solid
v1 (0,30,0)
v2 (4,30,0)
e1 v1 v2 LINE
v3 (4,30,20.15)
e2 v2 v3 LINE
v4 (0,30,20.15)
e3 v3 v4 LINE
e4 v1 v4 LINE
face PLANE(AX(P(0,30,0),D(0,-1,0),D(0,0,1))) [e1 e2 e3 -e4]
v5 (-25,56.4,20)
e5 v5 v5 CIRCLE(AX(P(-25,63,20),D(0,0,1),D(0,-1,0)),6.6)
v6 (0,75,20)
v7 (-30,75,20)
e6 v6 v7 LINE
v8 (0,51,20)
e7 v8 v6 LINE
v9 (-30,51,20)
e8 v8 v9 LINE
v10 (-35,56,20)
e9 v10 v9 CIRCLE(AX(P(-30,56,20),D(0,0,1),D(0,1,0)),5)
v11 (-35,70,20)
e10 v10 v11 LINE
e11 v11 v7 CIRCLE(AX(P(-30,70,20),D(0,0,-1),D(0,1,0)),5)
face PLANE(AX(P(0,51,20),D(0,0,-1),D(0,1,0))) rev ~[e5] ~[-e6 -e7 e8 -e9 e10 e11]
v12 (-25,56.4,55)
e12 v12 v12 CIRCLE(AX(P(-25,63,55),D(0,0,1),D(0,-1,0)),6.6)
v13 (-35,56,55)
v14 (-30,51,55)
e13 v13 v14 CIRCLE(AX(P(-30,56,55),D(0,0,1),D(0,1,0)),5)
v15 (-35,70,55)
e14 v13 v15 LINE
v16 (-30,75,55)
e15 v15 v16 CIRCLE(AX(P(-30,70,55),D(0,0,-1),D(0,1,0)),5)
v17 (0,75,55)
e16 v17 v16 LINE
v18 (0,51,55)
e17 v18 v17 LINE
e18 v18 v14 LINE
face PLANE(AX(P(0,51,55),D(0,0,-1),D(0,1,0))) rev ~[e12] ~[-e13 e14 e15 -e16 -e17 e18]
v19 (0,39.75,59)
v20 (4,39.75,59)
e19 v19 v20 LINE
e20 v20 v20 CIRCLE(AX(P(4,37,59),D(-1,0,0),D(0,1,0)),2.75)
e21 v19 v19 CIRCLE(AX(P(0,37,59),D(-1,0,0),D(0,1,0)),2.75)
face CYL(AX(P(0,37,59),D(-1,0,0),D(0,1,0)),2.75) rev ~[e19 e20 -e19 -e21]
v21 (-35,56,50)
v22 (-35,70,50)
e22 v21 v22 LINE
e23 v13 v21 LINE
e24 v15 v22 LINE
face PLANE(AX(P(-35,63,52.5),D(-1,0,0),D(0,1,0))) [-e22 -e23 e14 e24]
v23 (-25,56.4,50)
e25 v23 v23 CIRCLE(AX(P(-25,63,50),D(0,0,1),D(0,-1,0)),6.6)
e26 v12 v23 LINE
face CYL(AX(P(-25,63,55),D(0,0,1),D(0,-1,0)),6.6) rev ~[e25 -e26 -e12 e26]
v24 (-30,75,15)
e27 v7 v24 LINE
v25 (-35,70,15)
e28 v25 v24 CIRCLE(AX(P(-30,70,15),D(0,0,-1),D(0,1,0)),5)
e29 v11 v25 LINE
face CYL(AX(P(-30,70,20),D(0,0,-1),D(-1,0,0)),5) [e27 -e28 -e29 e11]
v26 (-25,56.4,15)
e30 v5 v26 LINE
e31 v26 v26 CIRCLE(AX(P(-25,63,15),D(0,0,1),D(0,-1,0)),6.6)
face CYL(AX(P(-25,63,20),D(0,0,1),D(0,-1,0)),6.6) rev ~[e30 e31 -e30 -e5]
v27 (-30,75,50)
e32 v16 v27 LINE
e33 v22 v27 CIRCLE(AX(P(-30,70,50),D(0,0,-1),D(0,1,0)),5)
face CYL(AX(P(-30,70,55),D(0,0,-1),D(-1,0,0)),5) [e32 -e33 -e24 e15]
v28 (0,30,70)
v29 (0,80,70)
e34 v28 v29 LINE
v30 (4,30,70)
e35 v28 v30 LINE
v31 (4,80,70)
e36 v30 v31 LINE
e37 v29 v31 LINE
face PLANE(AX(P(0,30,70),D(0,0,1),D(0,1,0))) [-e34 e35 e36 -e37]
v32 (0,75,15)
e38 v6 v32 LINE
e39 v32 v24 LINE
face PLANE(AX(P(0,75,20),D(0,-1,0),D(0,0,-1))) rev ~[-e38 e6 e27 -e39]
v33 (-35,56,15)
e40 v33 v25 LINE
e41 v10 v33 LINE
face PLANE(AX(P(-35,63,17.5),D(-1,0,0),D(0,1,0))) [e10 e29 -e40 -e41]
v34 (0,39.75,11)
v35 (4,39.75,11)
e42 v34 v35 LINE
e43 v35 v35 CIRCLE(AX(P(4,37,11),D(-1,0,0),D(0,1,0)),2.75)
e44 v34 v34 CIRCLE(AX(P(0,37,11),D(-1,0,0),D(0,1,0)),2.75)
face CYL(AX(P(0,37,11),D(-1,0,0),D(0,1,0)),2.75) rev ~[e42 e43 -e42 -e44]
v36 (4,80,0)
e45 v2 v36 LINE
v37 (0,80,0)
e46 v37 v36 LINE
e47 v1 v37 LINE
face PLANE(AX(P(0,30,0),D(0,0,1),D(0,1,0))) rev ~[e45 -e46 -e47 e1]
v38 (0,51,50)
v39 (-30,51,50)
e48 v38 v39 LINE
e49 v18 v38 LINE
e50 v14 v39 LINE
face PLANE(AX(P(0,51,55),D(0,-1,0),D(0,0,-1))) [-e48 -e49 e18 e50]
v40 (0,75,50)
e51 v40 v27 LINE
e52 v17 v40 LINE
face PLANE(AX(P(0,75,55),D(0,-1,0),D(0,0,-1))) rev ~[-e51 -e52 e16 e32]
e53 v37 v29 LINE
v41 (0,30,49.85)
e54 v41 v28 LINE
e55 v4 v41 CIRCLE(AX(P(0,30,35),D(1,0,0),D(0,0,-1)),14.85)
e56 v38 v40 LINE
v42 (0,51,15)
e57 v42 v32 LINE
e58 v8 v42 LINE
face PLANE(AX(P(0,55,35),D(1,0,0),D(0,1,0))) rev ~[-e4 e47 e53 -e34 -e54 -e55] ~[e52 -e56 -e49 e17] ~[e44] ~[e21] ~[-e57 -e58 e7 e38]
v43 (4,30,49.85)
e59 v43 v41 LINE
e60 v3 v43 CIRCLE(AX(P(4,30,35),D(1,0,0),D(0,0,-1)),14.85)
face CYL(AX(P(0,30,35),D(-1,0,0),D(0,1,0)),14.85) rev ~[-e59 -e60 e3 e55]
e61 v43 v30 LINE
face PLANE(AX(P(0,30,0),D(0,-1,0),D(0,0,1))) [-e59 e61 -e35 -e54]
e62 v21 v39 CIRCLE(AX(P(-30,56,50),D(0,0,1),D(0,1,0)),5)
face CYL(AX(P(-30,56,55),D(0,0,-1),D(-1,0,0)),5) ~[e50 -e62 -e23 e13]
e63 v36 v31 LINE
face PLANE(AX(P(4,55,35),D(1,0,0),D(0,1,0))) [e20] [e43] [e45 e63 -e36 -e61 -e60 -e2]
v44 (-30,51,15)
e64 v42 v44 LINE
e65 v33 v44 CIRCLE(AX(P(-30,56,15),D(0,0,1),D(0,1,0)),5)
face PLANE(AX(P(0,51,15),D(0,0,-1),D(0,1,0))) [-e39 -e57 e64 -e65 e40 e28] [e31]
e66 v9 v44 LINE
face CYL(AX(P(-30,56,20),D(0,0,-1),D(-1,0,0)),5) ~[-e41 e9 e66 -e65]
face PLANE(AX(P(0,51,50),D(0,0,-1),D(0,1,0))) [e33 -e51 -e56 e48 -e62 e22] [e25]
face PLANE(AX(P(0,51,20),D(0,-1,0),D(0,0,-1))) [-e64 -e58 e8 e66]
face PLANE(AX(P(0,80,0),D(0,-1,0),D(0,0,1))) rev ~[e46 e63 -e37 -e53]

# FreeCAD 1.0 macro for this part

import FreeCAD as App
import Part
import Sketcher

V = App.Vector
Q = App.Units.Quantity


def edges_at(feature, points):
    """Names of the edges that pass closest to the given points."""
    edges = feature.Shape.Edges
    near = lambda p: min(range(len(edges)), key=lambda i: edges[i].distToShape(Part.Vertex(*p))[0])
    return sorted({f"Edge{near(p) + 1}" for p in points})

doc = App.newDocument("Part")
body = doc.addObject("PartDesign::Body", "Body")

# Sketch on YZ plane
sketch1 = doc.addObject("Sketcher::SketchObject", "Sketch")
body.addObject(sketch1)
sketch1.AttachmentSupport = (doc.YZ_Plane, [""])
sketch1.MapMode = "FlatFace"
sketch1.addGeometry(Part.LineSegment(V(51, 50, 0), V(51, 55, 0)), False)
sketch1.addGeometry(Part.LineSegment(V(51, 55, 0), V(75, 55, 0)), False)
sketch1.addGeometry(Part.LineSegment(V(75, 55, 0), V(75, 50, 0)), False)
sketch1.addGeometry(Part.LineSegment(V(75, 50, 0), V(51, 50, 0)), False)
sketch1.addConstraint(Sketcher.Constraint("Coincident", 0, 2, 1, 1))
sketch1.addConstraint(Sketcher.Constraint("Coincident", 1, 2, 2, 1))
sketch1.addConstraint(Sketcher.Constraint("Coincident", 2, 2, 3, 1))
sketch1.addConstraint(Sketcher.Constraint("Coincident", 3, 2, 0, 1))
sketch1.addConstraint(Sketcher.Constraint("Vertical", 0))
sketch1.addConstraint(Sketcher.Constraint("Horizontal", 1))
sketch1.addConstraint(Sketcher.Constraint("Vertical", 2))
sketch1.addConstraint(Sketcher.Constraint("Horizontal", 3))
sketch1.addConstraint(Sketcher.Constraint("DistanceX", 1, 1, 1, 2, Q("24 mm")))
sketch1.addConstraint(Sketcher.Constraint("DistanceY", 0, 1, 0, 2, Q("5 mm")))
sketch1.addConstraint(Sketcher.Constraint("DistanceX", -1, 1, 0, 2, Q("51 mm")))
sketch1.addConstraint(Sketcher.Constraint("DistanceY", -1, 1, 0, 2, Q("55 mm")))
pad1 = doc.addObject("PartDesign::Pad", "Pad")
body.addObject(pad1)
pad1.Profile = sketch1
pad1.Length = 35
pad1.Reversed = True

# Sketch on XY plane
sketch2 = doc.addObject("Sketcher::SketchObject", "Sketch001")
body.addObject(sketch2)
sketch2.AttachmentSupport = (doc.XY_Plane, [""])
sketch2.MapMode = "FlatFace"
sketch2.AttachmentOffset = App.Placement(V(0, 0, 55), App.Rotation())
sketch2.addGeometry(Part.Circle(V(-25, 63, 0), V(0, 0, 1), 7), False)
sketch2.addConstraint(Sketcher.Constraint("Diameter", 0, Q("13.2 mm")))
sketch2.addConstraint(Sketcher.Constraint("DistanceX", 0, 3, -1, 1, Q("25 mm")))
sketch2.addConstraint(Sketcher.Constraint("DistanceY", -1, 1, 0, 3, Q("63 mm")))
pocket1 = doc.addObject("PartDesign::Pocket", "Pocket")
body.addObject(pocket1)
pocket1.Profile = sketch2
pocket1.Type = "ThroughAll"
doc.recompute()

fillet = doc.addObject("PartDesign::Fillet", "Fillet")
body.addObject(fillet)
fillet.Base = (pocket1, edges_at(pocket1, [(-35, 75, 52.5)]))
fillet.Radius = 5
doc.recompute()

fillet2 = doc.addObject("PartDesign::Fillet", "Fillet001")
body.addObject(fillet2)
fillet2.Base = (fillet, edges_at(fillet, [(-35, 51, 52.5)]))
fillet2.Radius = 5
body2 = doc.addObject("PartDesign::Body", "Body001")

# Sketch on YZ plane
sketch3 = doc.addObject("Sketcher::SketchObject", "Sketch002")
body2.addObject(sketch3)
sketch3.AttachmentSupport = (doc.getObject("YZ_Plane001"), [""])
sketch3.MapMode = "FlatFace"
sketch3.addGeometry(Part.LineSegment(V(51, 15, 0), V(51, 20, 0)), False)
sketch3.addGeometry(Part.LineSegment(V(51, 20, 0), V(75, 20, 0)), False)
sketch3.addGeometry(Part.LineSegment(V(75, 20, 0), V(75, 15, 0)), False)
sketch3.addGeometry(Part.LineSegment(V(75, 15, 0), V(51, 15, 0)), False)
sketch3.addConstraint(Sketcher.Constraint("Coincident", 0, 2, 1, 1))
sketch3.addConstraint(Sketcher.Constraint("Coincident", 1, 2, 2, 1))
sketch3.addConstraint(Sketcher.Constraint("Coincident", 2, 2, 3, 1))
sketch3.addConstraint(Sketcher.Constraint("Coincident", 3, 2, 0, 1))
sketch3.addConstraint(Sketcher.Constraint("Vertical", 0))
sketch3.addConstraint(Sketcher.Constraint("Horizontal", 1))
sketch3.addConstraint(Sketcher.Constraint("Vertical", 2))
sketch3.addConstraint(Sketcher.Constraint("Horizontal", 3))
sketch3.addConstraint(Sketcher.Constraint("DistanceX", 1, 1, 1, 2, Q("24 mm")))
sketch3.addConstraint(Sketcher.Constraint("DistanceY", 0, 1, 0, 2, Q("5 mm")))
sketch3.addConstraint(Sketcher.Constraint("DistanceX", -1, 1, 0, 2, Q("51 mm")))
sketch3.addConstraint(Sketcher.Constraint("DistanceY", -1, 1, 0, 2, Q("20 mm")))
pad2 = doc.addObject("PartDesign::Pad", "Pad001")
body2.addObject(pad2)
pad2.Profile = sketch3
pad2.Length = 35
pad2.Reversed = True

# Sketch on XY plane
sketch4 = doc.addObject("Sketcher::SketchObject", "Sketch003")
body2.addObject(sketch4)
sketch4.AttachmentSupport = (doc.getObject("XY_Plane001"), [""])
sketch4.MapMode = "FlatFace"
sketch4.AttachmentOffset = App.Placement(V(0, 0, 20), App.Rotation())
sketch4.addGeometry(Part.Circle(V(-25, 63, 0), V(0, 0, 1), 7), False)
sketch4.addConstraint(Sketcher.Constraint("Diameter", 0, Q("13.2 mm")))
sketch4.addConstraint(Sketcher.Constraint("DistanceX", 0, 3, -1, 1, Q("25 mm")))
sketch4.addConstraint(Sketcher.Constraint("DistanceY", -1, 1, 0, 3, Q("63 mm")))
pocket2 = doc.addObject("PartDesign::Pocket", "Pocket001")
body2.addObject(pocket2)
pocket2.Profile = sketch4
pocket2.Type = "ThroughAll"
doc.recompute()

fillet3 = doc.addObject("PartDesign::Fillet", "Fillet002")
body2.addObject(fillet3)
fillet3.Base = (pocket2, edges_at(pocket2, [(-35, 75, 17.5)]))
fillet3.Radius = 5
doc.recompute()

fillet4 = doc.addObject("PartDesign::Fillet", "Fillet003")
body2.addObject(fillet4)
fillet4.Base = (fillet3, edges_at(fillet3, [(-35, 51, 17.5)]))
fillet4.Radius = 5
body3 = doc.addObject("PartDesign::Body", "Body002")

# Sketch on YZ plane
sketch5 = doc.addObject("Sketcher::SketchObject", "Sketch004")
body3.addObject(sketch5)
sketch5.AttachmentSupport = (doc.getObject("YZ_Plane002"), [""])
sketch5.MapMode = "FlatFace"
sketch5.addGeometry(Part.LineSegment(V(30, 70, 0), V(30, 0, 0)), False)
sketch5.addGeometry(Part.LineSegment(V(30, 0, 0), V(80, 0, 0)), False)
sketch5.addGeometry(Part.LineSegment(V(80, 0, 0), V(80, 70, 0)), False)
sketch5.addGeometry(Part.LineSegment(V(80, 70, 0), V(30, 70, 0)), False)
sketch5.addConstraint(Sketcher.Constraint("Coincident", 0, 2, 1, 1))
sketch5.addConstraint(Sketcher.Constraint("Coincident", 1, 2, 2, 1))
sketch5.addConstraint(Sketcher.Constraint("Coincident", 2, 2, 3, 1))
sketch5.addConstraint(Sketcher.Constraint("Coincident", 3, 2, 0, 1))
sketch5.addConstraint(Sketcher.Constraint("Vertical", 0))
sketch5.addConstraint(Sketcher.Constraint("Horizontal", 1))
sketch5.addConstraint(Sketcher.Constraint("Vertical", 2))
sketch5.addConstraint(Sketcher.Constraint("Horizontal", 3))
sketch5.addConstraint(Sketcher.Constraint("PointOnObject", 0, 2, -1))
sketch5.addConstraint(Sketcher.Constraint("DistanceX", 1, 1, 1, 2, Q("50 mm")))
sketch5.addConstraint(Sketcher.Constraint("DistanceY", 0, 2, 0, 1, Q("70 mm")))
sketch5.addConstraint(Sketcher.Constraint("DistanceX", -1, 1, 0, 2, Q("30 mm")))
pad3 = doc.addObject("PartDesign::Pad", "Pad002")
body3.addObject(pad3)
pad3.Profile = sketch5
pad3.Length = 4

# Sketch on YZ plane
sketch6 = doc.addObject("Sketcher::SketchObject", "Sketch005")
body3.addObject(sketch6)
sketch6.AttachmentSupport = (doc.getObject("YZ_Plane002"), [""])
sketch6.MapMode = "FlatFace"
sketch6.addGeometry(Part.Circle(V(37, 11, 0), V(0, 0, 1), 2.8), False)
sketch6.addGeometry(Part.Circle(V(37, 59, 0), V(0, 0, 1), 2.8), False)
sketch6.addConstraint(Sketcher.Constraint("Equal", 0, 1))
sketch6.addConstraint(Sketcher.Constraint("Vertical", 0, 3, 1, 3))
sketch6.addConstraint(Sketcher.Constraint("Diameter", 0, Q("5.5 mm")))
sketch6.addConstraint(Sketcher.Constraint("DistanceX", -1, 1, 0, 3, Q("37 mm")))
sketch6.addConstraint(Sketcher.Constraint("DistanceY", -1, 1, 0, 3, Q("11 mm")))
sketch6.addConstraint(Sketcher.Constraint("DistanceY", -1, 1, 1, 3, Q("59 mm")))
pocket3 = doc.addObject("PartDesign::Pocket", "Pocket002")
body3.addObject(pocket3)
pocket3.Profile = sketch6
pocket3.Type = "ThroughAll"
pocket3.Reversed = True

# Sketch on YZ plane
sketch7 = doc.addObject("Sketcher::SketchObject", "Sketch006")
body3.addObject(sketch7)
sketch7.AttachmentSupport = (doc.getObject("YZ_Plane002"), [""])
sketch7.MapMode = "FlatFace"
sketch7.addGeometry(Part.Circle(V(30, 35, 0), V(0, 0, 1), 15), False)
sketch7.addConstraint(Sketcher.Constraint("Diameter", 0, Q("29.7 mm")))
sketch7.addConstraint(Sketcher.Constraint("DistanceX", -1, 1, 0, 3, Q("30 mm")))
sketch7.addConstraint(Sketcher.Constraint("DistanceY", -1, 1, 0, 3, Q("35 mm")))
pocket4 = doc.addObject("PartDesign::Pocket", "Pocket003")
body3.addObject(pocket4)
pocket4.Profile = sketch7
pocket4.Type = "ThroughAll"
pocket4.Reversed = True
doc.recompute()

boolean = doc.addObject("PartDesign::Boolean", "Boolean")
body3.addObject(boolean)
boolean.Type = "Fuse"
boolean.addObjects([body])
doc.recompute()

boolean2 = doc.addObject("PartDesign::Boolean", "Boolean001")
body3.addObject(boolean2)
boolean2.Type = "Fuse"
boolean2.addObjects([body2])

doc.recompute()
